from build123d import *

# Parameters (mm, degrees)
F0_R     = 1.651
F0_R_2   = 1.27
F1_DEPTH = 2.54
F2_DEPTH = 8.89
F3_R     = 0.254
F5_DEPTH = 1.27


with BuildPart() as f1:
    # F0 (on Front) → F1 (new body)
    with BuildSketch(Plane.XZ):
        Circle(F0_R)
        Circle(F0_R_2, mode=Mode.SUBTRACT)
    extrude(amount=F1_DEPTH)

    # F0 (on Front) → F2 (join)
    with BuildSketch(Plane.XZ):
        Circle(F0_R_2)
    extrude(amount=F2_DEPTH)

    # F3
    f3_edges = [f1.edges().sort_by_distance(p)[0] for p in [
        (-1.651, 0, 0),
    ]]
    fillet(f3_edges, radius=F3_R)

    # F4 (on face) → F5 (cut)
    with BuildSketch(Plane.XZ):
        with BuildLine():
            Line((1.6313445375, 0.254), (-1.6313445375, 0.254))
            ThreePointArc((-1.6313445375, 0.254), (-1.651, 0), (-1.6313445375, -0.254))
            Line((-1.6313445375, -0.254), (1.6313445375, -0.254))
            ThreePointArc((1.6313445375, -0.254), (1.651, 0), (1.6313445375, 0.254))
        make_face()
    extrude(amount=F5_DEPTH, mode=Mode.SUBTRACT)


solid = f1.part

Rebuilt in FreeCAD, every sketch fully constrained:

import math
import FreeCAD as App
import Part
import Sketcher
from FreeCAD import Vector
Q = App.Units.Quantity


def edges_at(feature, points):
    """Names of the edges that pass closest to the given points."""
    edges = feature.Shape.Edges
    near = lambda p: min(range(len(edges)), key=lambda i: edges[i].distToShape(Part.Vertex(*p))[0])
    return sorted({f"Edge{near(p) + 1}" for p in points})

doc = App.newDocument("Part")
body = doc.addObject("PartDesign::Body", "Body")

# Sketch on XZ plane
sketch1 = doc.addObject("Sketcher::SketchObject", "Sketch")
body.addObject(sketch1)
sketch1.AttachmentSupport = (doc.XZ_Plane, [""])
sketch1.MapMode = "FlatFace"
sketch1.addGeometry(Part.Circle(Vector(0, 0, 0), Vector(0, 0, 1), 1.7), False)
sketch1.addGeometry(Part.Circle(Vector(0, 0, 0), Vector(0, 0, 1), 1.3), False)
sketch1.addConstraint(Sketcher.Constraint("Coincident", 0, 3, -1, 1))
sketch1.addConstraint(Sketcher.Constraint("Coincident", 1, 3, -1, 1))
sketch1.addConstraint(Sketcher.Constraint("Diameter", 1, Q("0.1 in")))
sketch1.addConstraint(Sketcher.Constraint("Diameter", 0, Q("0.13 in")))
pad1 = doc.addObject("PartDesign::Pad", "Pad")
body.addObject(pad1)
pad1.Profile = sketch1
pad1.Length = Q("0.1 in")

# Sketch on XZ plane
sketch2 = doc.addObject("Sketcher::SketchObject", "Sketch001")
body.addObject(sketch2)
sketch2.AttachmentSupport = (doc.XZ_Plane, [""])
sketch2.MapMode = "FlatFace"
sketch2.addGeometry(Part.Circle(Vector(0, 0, 0), Vector(0, 0, 1), 1.3), False)
sketch2.addConstraint(Sketcher.Constraint("Coincident", 0, 3, -1, 1))
sketch2.addConstraint(Sketcher.Constraint("Diameter", 0, Q("0.1 in")))
pad2 = doc.addObject("PartDesign::Pad", "Pad001")
body.addObject(pad2)
pad2.Profile = sketch2
pad2.Length = Q("0.35 in")
doc.recompute()

fillet = doc.addObject("PartDesign::Fillet", "Fillet")
body.addObject(fillet)
fillet.Base = (pad2, edges_at(pad2, [(-1.651, 0, 0)]))
fillet.Radius = Q("0.01 in")

# Sketch on XZ plane
sketch3 = doc.addObject("Sketcher::SketchObject", "Sketch002")
body.addObject(sketch3)
sketch3.AttachmentSupport = (doc.XZ_Plane, [""])
sketch3.MapMode = "FlatFace"
sketch3.addGeometry(Part.LineSegment(Vector(1.6, 0.3, 0), Vector(-1.6, 0.3, 0)), False)
sketch3.addGeometry(Part.ArcOfCircle(Part.Circle(Vector(0, 0, 0), Vector(0, 0, 1), 1.7), math.radians(171.15), math.radians(188.85)), False)
sketch3.addGeometry(Part.LineSegment(Vector(-1.6, -0.3, 0), Vector(1.6, -0.3, 0)), False)
sketch3.addGeometry(Part.ArcOfCircle(Part.Circle(Vector(0, 0, 0), Vector(0, 0, 1), 1.7), math.radians(-8.85), math.radians(8.85)), False)
sketch3.addConstraint(Sketcher.Constraint("Coincident", 0, 2, 1, 1))
sketch3.addConstraint(Sketcher.Constraint("Coincident", 1, 2, 2, 1))
sketch3.addConstraint(Sketcher.Constraint("Coincident", 2, 2, 3, 1))
sketch3.addConstraint(Sketcher.Constraint("Coincident", 3, 2, 0, 1))
sketch3.addConstraint(Sketcher.Constraint("Horizontal", 0))
sketch3.addConstraint(Sketcher.Constraint("Horizontal", 2))
sketch3.addConstraint(Sketcher.Constraint("Coincident", 1, 3, -1, 1))
sketch3.addConstraint(Sketcher.Constraint("Coincident", 3, 3, -1, 1))
sketch3.addConstraint(Sketcher.Constraint("Equal", 1, 3))
sketch3.addConstraint(Sketcher.Constraint("Vertical", 0, 2, 1, 2))
sketch3.addConstraint(Sketcher.Constraint("Radius", 1, Q("0.065 in")))
sketch3.addConstraint(Sketcher.Constraint("DistanceY", -1, 1, 0, 2, Q("0.01 in")))
pocket1 = doc.addObject("PartDesign::Pocket", "Pocket")
body.addObject(pocket1)
pocket1.Profile = sketch3
pocket1.Length = Q("0.05 in")
pocket1.Reversed = True

doc.recompute()
